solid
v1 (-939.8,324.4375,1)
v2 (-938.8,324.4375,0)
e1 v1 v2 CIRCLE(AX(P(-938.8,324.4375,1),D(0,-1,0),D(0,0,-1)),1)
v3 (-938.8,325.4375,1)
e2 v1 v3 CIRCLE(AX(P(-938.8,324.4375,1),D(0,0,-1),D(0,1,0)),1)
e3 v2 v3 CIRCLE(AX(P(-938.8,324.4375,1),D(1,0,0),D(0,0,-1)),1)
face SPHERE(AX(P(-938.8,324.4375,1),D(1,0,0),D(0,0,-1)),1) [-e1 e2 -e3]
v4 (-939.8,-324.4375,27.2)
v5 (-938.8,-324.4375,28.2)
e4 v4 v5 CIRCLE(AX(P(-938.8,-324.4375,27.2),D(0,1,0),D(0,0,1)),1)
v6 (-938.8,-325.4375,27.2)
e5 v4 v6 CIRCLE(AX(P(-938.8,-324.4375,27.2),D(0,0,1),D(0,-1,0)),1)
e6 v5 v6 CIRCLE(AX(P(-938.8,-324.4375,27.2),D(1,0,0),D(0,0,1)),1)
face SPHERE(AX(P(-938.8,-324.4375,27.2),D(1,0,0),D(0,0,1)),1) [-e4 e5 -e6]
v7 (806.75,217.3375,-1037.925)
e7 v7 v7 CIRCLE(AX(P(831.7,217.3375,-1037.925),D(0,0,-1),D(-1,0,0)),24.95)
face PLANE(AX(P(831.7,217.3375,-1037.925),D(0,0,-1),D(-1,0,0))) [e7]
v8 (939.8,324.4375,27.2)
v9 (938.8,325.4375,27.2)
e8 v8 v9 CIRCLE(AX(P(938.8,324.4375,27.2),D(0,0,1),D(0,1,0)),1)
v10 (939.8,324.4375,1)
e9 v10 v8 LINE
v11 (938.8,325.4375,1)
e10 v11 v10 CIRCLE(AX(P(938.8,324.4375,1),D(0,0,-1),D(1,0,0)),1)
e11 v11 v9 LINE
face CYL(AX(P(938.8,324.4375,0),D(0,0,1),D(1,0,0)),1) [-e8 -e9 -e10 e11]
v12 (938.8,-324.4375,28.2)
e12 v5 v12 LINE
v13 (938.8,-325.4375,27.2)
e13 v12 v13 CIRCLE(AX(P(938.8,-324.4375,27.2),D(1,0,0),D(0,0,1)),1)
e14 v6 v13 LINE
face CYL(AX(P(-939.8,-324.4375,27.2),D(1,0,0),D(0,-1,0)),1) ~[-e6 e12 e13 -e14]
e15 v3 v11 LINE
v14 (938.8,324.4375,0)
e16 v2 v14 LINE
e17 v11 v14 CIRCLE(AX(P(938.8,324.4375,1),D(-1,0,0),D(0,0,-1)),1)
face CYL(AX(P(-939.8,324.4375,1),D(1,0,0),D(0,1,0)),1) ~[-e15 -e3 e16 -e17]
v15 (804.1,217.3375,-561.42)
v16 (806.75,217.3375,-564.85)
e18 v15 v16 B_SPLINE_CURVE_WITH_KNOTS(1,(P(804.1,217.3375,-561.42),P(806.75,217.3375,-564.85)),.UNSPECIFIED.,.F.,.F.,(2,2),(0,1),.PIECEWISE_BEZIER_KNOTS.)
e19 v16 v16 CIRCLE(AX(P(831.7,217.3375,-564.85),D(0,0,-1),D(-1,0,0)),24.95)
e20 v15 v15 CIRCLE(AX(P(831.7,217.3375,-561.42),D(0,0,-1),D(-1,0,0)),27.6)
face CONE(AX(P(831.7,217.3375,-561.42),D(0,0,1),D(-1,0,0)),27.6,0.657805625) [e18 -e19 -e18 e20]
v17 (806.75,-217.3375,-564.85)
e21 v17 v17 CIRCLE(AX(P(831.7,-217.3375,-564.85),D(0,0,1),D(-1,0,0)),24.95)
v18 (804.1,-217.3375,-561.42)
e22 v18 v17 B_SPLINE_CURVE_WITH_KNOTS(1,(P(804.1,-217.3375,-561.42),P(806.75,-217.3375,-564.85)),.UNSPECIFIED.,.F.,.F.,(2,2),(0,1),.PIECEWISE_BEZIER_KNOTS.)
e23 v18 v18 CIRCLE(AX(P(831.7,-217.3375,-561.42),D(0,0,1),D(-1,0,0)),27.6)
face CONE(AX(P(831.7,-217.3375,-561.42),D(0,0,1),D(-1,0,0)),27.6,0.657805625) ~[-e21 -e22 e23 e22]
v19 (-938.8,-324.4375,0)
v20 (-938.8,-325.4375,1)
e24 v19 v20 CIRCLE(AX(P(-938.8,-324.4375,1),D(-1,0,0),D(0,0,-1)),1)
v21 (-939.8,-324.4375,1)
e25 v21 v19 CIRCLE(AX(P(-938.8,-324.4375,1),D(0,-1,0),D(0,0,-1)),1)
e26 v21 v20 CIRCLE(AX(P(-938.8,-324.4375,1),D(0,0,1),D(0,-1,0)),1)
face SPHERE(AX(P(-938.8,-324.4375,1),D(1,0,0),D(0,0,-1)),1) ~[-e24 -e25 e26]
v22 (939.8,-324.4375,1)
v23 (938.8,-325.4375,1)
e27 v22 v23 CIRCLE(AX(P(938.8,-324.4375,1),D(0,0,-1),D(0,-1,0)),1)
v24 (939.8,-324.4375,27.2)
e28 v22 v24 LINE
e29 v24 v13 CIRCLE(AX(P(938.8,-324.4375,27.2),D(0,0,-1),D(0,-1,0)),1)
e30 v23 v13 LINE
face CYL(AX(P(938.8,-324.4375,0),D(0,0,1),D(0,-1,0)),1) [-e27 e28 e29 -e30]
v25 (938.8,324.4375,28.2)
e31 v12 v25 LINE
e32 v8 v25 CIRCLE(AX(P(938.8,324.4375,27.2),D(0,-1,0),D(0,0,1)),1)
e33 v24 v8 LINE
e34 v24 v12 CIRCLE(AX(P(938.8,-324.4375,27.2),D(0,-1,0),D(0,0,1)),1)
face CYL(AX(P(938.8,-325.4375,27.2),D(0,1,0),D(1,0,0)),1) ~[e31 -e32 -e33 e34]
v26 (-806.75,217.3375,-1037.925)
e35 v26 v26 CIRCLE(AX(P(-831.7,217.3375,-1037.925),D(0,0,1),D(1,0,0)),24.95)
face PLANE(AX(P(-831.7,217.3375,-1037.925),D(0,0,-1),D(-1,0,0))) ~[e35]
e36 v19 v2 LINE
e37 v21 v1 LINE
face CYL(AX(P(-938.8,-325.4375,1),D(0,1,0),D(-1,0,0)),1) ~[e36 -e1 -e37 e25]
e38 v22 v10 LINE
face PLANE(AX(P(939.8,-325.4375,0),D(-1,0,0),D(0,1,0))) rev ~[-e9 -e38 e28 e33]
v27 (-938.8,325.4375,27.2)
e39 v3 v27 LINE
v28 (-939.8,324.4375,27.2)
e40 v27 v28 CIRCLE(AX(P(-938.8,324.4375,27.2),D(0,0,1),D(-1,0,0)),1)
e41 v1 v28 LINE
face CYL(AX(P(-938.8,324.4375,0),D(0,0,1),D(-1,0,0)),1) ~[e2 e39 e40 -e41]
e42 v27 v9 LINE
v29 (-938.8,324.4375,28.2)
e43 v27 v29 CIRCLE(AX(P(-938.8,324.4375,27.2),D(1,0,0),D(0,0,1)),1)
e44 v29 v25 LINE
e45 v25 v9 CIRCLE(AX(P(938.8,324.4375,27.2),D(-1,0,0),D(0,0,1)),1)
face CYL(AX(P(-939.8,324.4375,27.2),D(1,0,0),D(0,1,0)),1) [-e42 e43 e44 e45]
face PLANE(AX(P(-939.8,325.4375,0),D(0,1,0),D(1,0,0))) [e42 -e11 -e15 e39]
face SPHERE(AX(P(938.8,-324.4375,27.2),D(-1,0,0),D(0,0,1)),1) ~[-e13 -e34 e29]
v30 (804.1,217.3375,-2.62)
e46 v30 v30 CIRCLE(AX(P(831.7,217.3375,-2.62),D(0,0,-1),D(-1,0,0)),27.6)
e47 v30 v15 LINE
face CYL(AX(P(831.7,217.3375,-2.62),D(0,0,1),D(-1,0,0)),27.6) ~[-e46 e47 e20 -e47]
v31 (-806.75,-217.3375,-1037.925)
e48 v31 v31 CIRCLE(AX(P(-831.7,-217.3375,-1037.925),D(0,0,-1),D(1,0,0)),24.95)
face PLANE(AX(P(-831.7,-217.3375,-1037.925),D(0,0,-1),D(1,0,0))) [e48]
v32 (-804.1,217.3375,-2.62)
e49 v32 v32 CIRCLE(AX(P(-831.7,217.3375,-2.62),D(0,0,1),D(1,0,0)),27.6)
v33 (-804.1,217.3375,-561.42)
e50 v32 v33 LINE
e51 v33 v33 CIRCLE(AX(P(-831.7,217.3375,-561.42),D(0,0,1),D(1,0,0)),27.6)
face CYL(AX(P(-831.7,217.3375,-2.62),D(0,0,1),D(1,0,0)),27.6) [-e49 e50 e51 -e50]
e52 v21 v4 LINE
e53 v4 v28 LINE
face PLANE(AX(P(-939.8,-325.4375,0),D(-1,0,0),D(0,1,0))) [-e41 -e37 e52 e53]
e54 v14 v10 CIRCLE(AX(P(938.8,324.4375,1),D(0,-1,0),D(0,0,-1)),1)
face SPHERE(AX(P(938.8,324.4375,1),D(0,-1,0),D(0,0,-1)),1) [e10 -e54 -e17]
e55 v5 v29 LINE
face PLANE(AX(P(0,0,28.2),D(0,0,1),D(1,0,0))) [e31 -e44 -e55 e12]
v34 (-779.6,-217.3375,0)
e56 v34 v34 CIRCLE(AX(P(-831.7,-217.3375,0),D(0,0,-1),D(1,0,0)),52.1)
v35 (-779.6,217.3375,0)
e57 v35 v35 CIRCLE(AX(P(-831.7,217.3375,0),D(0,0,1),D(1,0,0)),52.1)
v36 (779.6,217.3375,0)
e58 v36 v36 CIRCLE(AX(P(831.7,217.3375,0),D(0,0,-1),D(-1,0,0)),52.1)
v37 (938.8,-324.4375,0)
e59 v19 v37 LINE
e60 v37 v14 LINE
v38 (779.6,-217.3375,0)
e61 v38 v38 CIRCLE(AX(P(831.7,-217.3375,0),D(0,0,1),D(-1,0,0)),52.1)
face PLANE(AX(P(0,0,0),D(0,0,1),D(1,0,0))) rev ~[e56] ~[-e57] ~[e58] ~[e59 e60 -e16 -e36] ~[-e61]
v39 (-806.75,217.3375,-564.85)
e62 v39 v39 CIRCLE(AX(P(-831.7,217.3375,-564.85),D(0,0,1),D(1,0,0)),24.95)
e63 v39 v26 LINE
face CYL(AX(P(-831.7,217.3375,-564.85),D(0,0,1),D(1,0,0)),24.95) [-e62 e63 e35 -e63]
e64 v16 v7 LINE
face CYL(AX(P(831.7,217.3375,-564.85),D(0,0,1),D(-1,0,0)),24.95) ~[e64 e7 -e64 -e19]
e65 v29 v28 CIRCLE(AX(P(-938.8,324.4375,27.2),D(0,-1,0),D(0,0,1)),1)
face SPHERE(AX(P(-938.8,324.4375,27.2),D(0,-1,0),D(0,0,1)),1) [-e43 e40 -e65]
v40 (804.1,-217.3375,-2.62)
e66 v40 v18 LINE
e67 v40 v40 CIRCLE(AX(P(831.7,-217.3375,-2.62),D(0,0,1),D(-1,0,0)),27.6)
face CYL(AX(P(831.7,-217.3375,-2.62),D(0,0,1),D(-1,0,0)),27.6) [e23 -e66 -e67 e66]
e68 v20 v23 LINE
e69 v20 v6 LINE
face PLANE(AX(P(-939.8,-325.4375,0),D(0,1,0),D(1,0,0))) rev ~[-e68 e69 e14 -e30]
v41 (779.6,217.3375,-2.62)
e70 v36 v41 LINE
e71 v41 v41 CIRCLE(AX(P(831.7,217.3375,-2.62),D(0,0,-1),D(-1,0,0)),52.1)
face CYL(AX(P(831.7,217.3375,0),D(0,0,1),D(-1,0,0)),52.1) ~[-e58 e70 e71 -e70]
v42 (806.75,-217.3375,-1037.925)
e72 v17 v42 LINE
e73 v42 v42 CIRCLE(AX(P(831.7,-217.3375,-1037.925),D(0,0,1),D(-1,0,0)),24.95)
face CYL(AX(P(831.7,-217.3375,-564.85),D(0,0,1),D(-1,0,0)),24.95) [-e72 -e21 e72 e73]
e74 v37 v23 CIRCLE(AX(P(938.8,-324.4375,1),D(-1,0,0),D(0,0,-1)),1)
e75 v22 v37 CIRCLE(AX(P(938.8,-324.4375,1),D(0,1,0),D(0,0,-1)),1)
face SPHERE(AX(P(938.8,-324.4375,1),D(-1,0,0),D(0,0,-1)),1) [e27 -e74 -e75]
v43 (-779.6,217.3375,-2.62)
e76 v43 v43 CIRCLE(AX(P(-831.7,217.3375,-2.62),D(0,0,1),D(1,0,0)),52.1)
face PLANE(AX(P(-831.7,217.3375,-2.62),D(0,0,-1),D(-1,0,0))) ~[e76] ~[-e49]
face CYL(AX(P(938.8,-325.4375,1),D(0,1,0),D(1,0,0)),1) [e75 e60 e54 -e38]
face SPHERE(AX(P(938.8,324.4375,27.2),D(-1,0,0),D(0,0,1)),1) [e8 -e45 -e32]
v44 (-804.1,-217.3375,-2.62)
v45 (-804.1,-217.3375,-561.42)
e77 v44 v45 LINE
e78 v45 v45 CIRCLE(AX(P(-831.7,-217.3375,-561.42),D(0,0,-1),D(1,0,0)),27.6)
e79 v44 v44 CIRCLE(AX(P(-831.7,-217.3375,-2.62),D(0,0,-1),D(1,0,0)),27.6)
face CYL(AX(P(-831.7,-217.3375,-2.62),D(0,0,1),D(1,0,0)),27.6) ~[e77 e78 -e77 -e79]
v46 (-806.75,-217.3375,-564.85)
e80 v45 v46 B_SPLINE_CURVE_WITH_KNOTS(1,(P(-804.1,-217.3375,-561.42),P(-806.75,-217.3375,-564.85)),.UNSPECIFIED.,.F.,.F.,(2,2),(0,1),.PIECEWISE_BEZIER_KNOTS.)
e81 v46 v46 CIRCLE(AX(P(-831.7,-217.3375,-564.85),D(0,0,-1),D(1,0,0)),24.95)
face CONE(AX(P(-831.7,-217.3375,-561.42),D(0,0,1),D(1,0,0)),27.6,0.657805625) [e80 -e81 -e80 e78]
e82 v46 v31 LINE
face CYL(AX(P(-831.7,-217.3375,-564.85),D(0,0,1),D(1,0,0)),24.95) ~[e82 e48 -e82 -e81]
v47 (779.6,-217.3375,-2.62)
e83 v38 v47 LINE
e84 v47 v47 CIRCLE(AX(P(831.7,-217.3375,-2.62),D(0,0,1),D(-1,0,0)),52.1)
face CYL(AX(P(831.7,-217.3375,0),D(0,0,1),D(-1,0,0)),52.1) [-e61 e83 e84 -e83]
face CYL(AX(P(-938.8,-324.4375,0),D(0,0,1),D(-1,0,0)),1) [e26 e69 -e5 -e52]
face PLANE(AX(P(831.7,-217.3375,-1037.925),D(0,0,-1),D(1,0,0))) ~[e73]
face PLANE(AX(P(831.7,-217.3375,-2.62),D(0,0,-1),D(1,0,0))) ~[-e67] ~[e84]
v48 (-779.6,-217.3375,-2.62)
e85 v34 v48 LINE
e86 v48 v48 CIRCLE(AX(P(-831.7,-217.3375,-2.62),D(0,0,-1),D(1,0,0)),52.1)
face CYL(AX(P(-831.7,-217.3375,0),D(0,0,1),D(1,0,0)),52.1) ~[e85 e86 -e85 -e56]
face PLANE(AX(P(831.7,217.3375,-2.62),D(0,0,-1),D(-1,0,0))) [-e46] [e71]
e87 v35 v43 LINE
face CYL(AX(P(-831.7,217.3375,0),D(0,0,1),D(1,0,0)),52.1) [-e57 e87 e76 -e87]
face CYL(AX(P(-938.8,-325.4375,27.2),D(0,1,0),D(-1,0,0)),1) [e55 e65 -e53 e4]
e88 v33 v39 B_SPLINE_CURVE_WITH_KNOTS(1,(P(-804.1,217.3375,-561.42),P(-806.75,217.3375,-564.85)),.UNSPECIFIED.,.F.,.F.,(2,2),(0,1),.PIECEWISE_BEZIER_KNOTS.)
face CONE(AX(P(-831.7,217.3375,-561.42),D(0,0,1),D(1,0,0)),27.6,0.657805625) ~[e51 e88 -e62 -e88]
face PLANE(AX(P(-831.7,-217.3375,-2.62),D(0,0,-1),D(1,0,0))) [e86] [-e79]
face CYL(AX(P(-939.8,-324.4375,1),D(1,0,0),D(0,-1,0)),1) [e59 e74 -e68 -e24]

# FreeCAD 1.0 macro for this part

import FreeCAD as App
import Part
import Sketcher
from FreeCAD import Vector
Q = App.Units.Quantity

doc = App.newDocument("Part")
body = doc.addObject("PartDesign::Body", "Body")

# Sketch on XY plane
sketch1 = doc.addObject("Sketcher::SketchObject", "Sketch")
body.addObject(sketch1)
sketch1.AttachmentSupport = (doc.XY_Plane, [""])
sketch1.MapMode = "FlatFace"
sketch1.addGeometry(Part.LineSegment(Vector(-940, 325, 0), Vector(-940, -325, 0)), False)
sketch1.addGeometry(Part.LineSegment(Vector(-940, -325, 0), Vector(940, -325, 0)), False)
sketch1.addGeometry(Part.LineSegment(Vector(940, -325, 0), Vector(940, 325, 0)), False)
sketch1.addGeometry(Part.LineSegment(Vector(940, 325, 0), Vector(-940, 325, 0)), False)
sketch1.addConstraint(Sketcher.Constraint("Coincident", 0, 2, 1, 1))
sketch1.addConstraint(Sketcher.Constraint("Coincident", 1, 2, 2, 1))
sketch1.addConstraint(Sketcher.Constraint("Coincident", 2, 2, 3, 1))
sketch1.addConstraint(Sketcher.Constraint("Coincident", 3, 2, 0, 1))
sketch1.addConstraint(Sketcher.Constraint("Vertical", 0))
sketch1.addConstraint(Sketcher.Constraint("Horizontal", 1))
sketch1.addConstraint(Sketcher.Constraint("Vertical", 2))
sketch1.addConstraint(Sketcher.Constraint("Horizontal", 3))
sketch1.addConstraint(Sketcher.Constraint("Symmetric", 0, 2, 2, 2, -1, 1))
sketch1.addConstraint(Sketcher.Constraint("DistanceX", 1, 1, 1, 2, Q("1879.6 mm")))
sketch1.addConstraint(Sketcher.Constraint("DistanceY", 0, 2, 0, 1, Q("650.875 mm")))
pad1 = doc.addObject("PartDesign::Pad", "Pad")
body.addObject(pad1)
pad1.Profile = sketch1
pad1.Length = 28.2
doc.recompute()

fillet = doc.addObject("PartDesign::Fillet", "Fillet")
body.addObject(fillet)
fillet.Base = (pad1, ["Edge1"])
fillet.UseAllEdges = True
fillet.Radius = 1

# Sketch on XY plane
sketch2 = doc.addObject("Sketcher::SketchObject", "Sketch001")
body.addObject(sketch2)
sketch2.AttachmentSupport = (doc.XY_Plane, [""])
sketch2.MapMode = "FlatFace"
sketch2.addGeometry(Part.Circle(Vector(-832, -217, 0), Vector(0, 0, 1), 52), False)
sketch2.addConstraint(Sketcher.Constraint("Diameter", 0, Q("104.2 mm")))
sketch2.addConstraint(Sketcher.Constraint("DistanceX", 0, 3, -1, 1, Q("831.7 mm")))
sketch2.addConstraint(Sketcher.Constraint("DistanceY", 0, 3, -1, 1, Q("217.3375 mm")))
pad2 = doc.addObject("PartDesign::Pad", "Pad001")
body.addObject(pad2)
pad2.Profile = sketch2
pad2.Length = 2.62
pad2.Reversed = True

# Sketch on XY plane
sketch3 = doc.addObject("Sketcher::SketchObject", "Sketch002")
body.addObject(sketch3)
sketch3.AttachmentSupport = (doc.XY_Plane, [""])
sketch3.MapMode = "FlatFace"
sketch3.AttachmentOffset = App.Placement(Vector(0, 0, -2.62), App.Rotation())
sketch3.addGeometry(Part.Circle(Vector(-832, -217, 0), Vector(0, 0, 1), 28), False)
sketch3.addConstraint(Sketcher.Constraint("Diameter", 0, Q("55.2 mm")))
sketch3.addConstraint(Sketcher.Constraint("DistanceX", 0, 3, -1, 1, Q("831.7 mm")))
sketch3.addConstraint(Sketcher.Constraint("DistanceY", 0, 3, -1, 1, Q("217.3375 mm")))
pad3 = doc.addObject("PartDesign::Pad", "Pad002")
body.addObject(pad3)
pad3.Profile = sketch3
pad3.Length = 558.8
pad3.Reversed = True
body2 = doc.addObject("PartDesign::Body", "Body001")

# Sketch on XY plane
sketch4 = doc.addObject("Sketcher::SketchObject", "Sketch003")
body2.addObject(sketch4)
sketch4.AttachmentSupport = (doc.getObject("XY_Plane001"), [""])
sketch4.MapMode = "FlatFace"
sketch4.AttachmentOffset = App.Placement(Vector(0, 0, -564.85), App.Rotation())
sketch4.addGeometry(Part.Circle(Vector(-832, -217, 0), Vector(0, 0, 1), 25), False)
sketch4.addConstraint(Sketcher.Constraint("Diameter", 0, Q("49.9 mm")))
sketch4.addConstraint(Sketcher.Constraint("DistanceX", 0, 3, -1, 1, Q("831.7 mm")))
sketch4.addConstraint(Sketcher.Constraint("DistanceY", 0, 3, -1, 1, Q("217.3375 mm")))
pad4 = doc.addObject("PartDesign::Pad", "Pad003")
body2.addObject(pad4)
pad4.Profile = sketch4
pad4.Length = 473.075
pad4.Reversed = True
body.AllowCompound = True
doc.recompute()

boolean = doc.addObject("PartDesign::Boolean", "Boolean")
body.addObject(boolean)
boolean.Type = "Fuse"
boolean.addObjects([body2])

# Sketch on XY plane
sketch5 = doc.addObject("Sketcher::SketchObject", "Sketch004")
body.addObject(sketch5)
sketch5.AttachmentSupport = (doc.XY_Plane, [""])
sketch5.MapMode = "FlatFace"
sketch5.AttachmentOffset = App.Placement(Vector(0, 0, -561.42), App.Rotation())
sketch5.addGeometry(Part.Circle(Vector(-832, -217, 0), Vector(0, 0, 1), 28), False)
sketch5.addConstraint(Sketcher.Constraint("Diameter", 0, Q("55.2 mm")))
sketch5.addConstraint(Sketcher.Constraint("DistanceX", 0, 3, -1, 1, Q("831.7 mm")))
sketch5.addConstraint(Sketcher.Constraint("DistanceY", 0, 3, -1, 1, Q("217.3375 mm")))

# Sketch on XY plane
sketch6 = doc.addObject("Sketcher::SketchObject", "Sketch005")
body.addObject(sketch6)
sketch6.AttachmentSupport = (doc.XY_Plane, [""])
sketch6.MapMode = "FlatFace"
sketch6.AttachmentOffset = App.Placement(Vector(0, 0, -564.85), App.Rotation())
sketch6.addGeometry(Part.Circle(Vector(-832, -217, 0), Vector(0, 0, 1), 25), False)
sketch6.addConstraint(Sketcher.Constraint("Diameter", 0, Q("49.9 mm")))
sketch6.addConstraint(Sketcher.Constraint("DistanceX", 0, 3, -1, 1, Q("831.7 mm")))
sketch6.addConstraint(Sketcher.Constraint("DistanceY", 0, 3, -1, 1, Q("217.3375 mm")))

additiveloft = doc.addObject("PartDesign::AdditiveLoft", "AdditiveLoft")
body.addObject(additiveloft)
additiveloft.Profile = sketch5
additiveloft.Sections = [sketch6]
body3 = doc.addObject("PartDesign::Body", "Body002")
doc.recompute()

body3.BaseFeature = body
doc.recompute()

mirroring = doc.addObject("Part::Mirroring", "Mirroring")
mirroring.Source = body
mirroring.Base = Vector(0, 0, 0)
mirroring.Normal = Vector(0, -1, 0)
body4 = doc.addObject("PartDesign::Body", "Body003")
body4.BaseFeature = mirroring
boolean2 = doc.addObject("PartDesign::Boolean", "Boolean001")
body3.addObject(boolean2)
boolean2.Type = "Fuse"
boolean2.addObjects([body4])
doc.recompute()
body5 = doc.addObject("PartDesign::Body", "Body004")
doc.recompute()

body5.BaseFeature = body3
doc.recompute()

mirroring2 = doc.addObject("Part::Mirroring", "Mirroring001")
mirroring2.Source = body3
mirroring2.Base = Vector(0, 0, 0)
mirroring2.Normal = Vector(1, 0, 0)
body6 = doc.addObject("PartDesign::Body", "Body005")
body6.BaseFeature = mirroring2
boolean3 = doc.addObject("PartDesign::Boolean", "Boolean002")
body5.addObject(boolean3)
boolean3.Type = "Fuse"
boolean3.addObjects([body6])
doc.recompute()
mirroring.Visibility = False
mirroring2.Visibility = False

doc.recompute()
